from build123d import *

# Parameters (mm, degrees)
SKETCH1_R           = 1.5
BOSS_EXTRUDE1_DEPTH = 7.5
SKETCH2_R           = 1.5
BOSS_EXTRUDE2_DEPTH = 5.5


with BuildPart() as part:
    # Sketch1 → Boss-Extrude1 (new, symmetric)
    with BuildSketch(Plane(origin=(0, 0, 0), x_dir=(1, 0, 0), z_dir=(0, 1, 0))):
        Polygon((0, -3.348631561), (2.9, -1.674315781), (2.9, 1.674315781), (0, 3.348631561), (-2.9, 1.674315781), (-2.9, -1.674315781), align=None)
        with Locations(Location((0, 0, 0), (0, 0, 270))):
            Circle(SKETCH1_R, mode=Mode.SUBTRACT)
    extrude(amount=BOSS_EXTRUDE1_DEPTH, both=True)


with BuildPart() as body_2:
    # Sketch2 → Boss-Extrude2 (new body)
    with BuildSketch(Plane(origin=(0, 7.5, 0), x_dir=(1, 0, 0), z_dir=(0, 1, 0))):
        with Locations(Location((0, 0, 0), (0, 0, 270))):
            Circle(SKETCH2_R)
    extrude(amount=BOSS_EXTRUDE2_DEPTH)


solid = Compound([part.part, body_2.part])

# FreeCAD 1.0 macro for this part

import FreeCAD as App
import Part
import Sketcher

V = App.Vector
Q = App.Units.Quantity

doc = App.newDocument("Part")
body = doc.addObject("PartDesign::Body", "Body")

# Sketch on XZ plane
sketch1 = body.newObject("Sketcher::SketchObject", "Sketch")
sketch1.AttachmentSupport = (doc.getObject("XZ_Plane"), [""])
sketch1.MapMode = "FlatFace"
sketch1.addGeometry(Part.LineSegment(V(0, 3.348632, 0), V(2.9, 1.674316, 0)), False)
sketch1.addGeometry(Part.LineSegment(V(2.9, 1.674316, 0), V(2.9, -1.674316, 0)), False)
sketch1.addGeometry(Part.LineSegment(V(2.9, -1.674316, 0), V(0, -3.348632, 0)), False)
sketch1.addGeometry(Part.LineSegment(V(0, -3.348632, 0), V(-2.9, -1.674316, 0)), False)
sketch1.addGeometry(Part.LineSegment(V(-2.9, -1.674316, 0), V(-2.9, 1.674316, 0)), False)
sketch1.addGeometry(Part.LineSegment(V(-2.9, 1.674316, 0), V(0, 3.348632, 0)), False)
sketch1.addGeometry(Part.Circle(V(0, 0, 0), V(0, 0, 1), 1.5), False)
sketch1.addConstraint(Sketcher.Constraint("Coincident", 0, 2, 1, 1))
sketch1.addConstraint(Sketcher.Constraint("Coincident", 1, 2, 2, 1))
sketch1.addConstraint(Sketcher.Constraint("Coincident", 2, 2, 3, 1))
sketch1.addConstraint(Sketcher.Constraint("Coincident", 3, 2, 4, 1))
sketch1.addConstraint(Sketcher.Constraint("Coincident", 4, 2, 5, 1))
sketch1.addConstraint(Sketcher.Constraint("Coincident", 5, 2, 0, 1))
sketch1.addConstraint(Sketcher.Constraint("Vertical", 1))
sketch1.addConstraint(Sketcher.Constraint("Vertical", 4))
sketch1.addConstraint(Sketcher.Constraint("Coincident", 6, 3, -1, 1))
sketch1.addConstraint(Sketcher.Constraint("Symmetric", 0, 2, 3, 2, -1, 1))
sketch1.addConstraint(Sketcher.Constraint("Symmetric", 2, 2, 5, 2, -1, 1))
sketch1.addConstraint(Sketcher.Constraint("PointOnObject", 2, 2, -2))
sketch1.addConstraint(Sketcher.Constraint("Parallel", 2, 5))
sketch1.addConstraint(Sketcher.Constraint("Horizontal", 1, 2, 3, 2))
sketch1.addConstraint(Sketcher.Constraint("Diameter", 6, Q("3 mm")))
sketch1.addConstraint(Sketcher.Constraint("Angle", 0, Q("-30 deg")))
sketch1.addConstraint(Sketcher.Constraint("DistanceX", -1, 1, 0, 2, Q("2.9 mm")))
sketch1.addConstraint(Sketcher.Constraint("DistanceY", 1, 2, 1, 1, Q("3.348632 mm")))
pad1 = body.newObject("PartDesign::Pad", "Pad")
pad1.Profile = sketch1
pad1.Length = 15
pad1.Midplane = True
body2 = doc.addObject("PartDesign::Body", "Body001")

# Sketch on XZ plane
sketch2 = body2.newObject("Sketcher::SketchObject", "Sketch001")
sketch2.AttachmentSupport = (doc.getObject("XZ_Plane001"), [""])
sketch2.MapMode = "FlatFace"
sketch2.AttachmentOffset = App.Placement(V(0, 0, -7.5), App.Rotation())
sketch2.addGeometry(Part.Circle(V(0, 0, 0), V(0, 0, 1), 1.5), False)
sketch2.addConstraint(Sketcher.Constraint("Coincident", 0, 3, -1, 1))
sketch2.addConstraint(Sketcher.Constraint("Diameter", 0, Q("3 mm")))
pad2 = body2.newObject("PartDesign::Pad", "Pad001")
pad2.Profile = sketch2
pad2.Length = 5.5
pad2.Reversed = True

doc.recompute()
